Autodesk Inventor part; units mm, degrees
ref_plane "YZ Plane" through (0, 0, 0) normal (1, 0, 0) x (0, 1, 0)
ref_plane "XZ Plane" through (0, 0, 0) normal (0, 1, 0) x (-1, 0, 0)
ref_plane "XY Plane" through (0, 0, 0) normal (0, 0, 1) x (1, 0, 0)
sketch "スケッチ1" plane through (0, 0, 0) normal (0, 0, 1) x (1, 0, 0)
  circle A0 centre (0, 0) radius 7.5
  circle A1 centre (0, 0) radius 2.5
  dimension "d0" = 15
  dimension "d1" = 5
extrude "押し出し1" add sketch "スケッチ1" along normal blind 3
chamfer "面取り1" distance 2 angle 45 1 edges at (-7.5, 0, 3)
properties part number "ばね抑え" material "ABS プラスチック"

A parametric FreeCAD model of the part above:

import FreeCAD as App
import Part
import Sketcher


def edges_at(feature, points):
    """Names of the edges that pass closest to the given points."""
    edges = feature.Shape.Edges
    near = lambda p: min(range(len(edges)), key=lambda i: edges[i].distToShape(Part.Vertex(*p))[0])
    return sorted({f"Edge{near(p) + 1}" for p in points})

doc = App.newDocument("Part")
body = doc.addObject("PartDesign::Body", "Body")

sketch1 = doc.addObject("Sketcher::SketchObject", "Sketch")
body.addObject(sketch1)
sketch1.AttachmentSupport = (doc.XY_Plane, [""])
sketch1.MapMode = "FlatFace"
sketch1.addGeometry(Part.Circle(App.Vector(0, 0, 0), App.Vector(0, 0, 1), 7.5), False)
sketch1.addGeometry(Part.Circle(App.Vector(0, 0, 0), App.Vector(0, 0, 1), 2.5), False)
sketch1.addConstraint(Sketcher.Constraint("Coincident", 0, 3, -1, 1))
sketch1.addConstraint(Sketcher.Constraint("Coincident", 1, 3, -1, 1))
sketch1.addConstraint(Sketcher.Constraint("Diameter", 0, 15.0))
sketch1.addConstraint(Sketcher.Constraint("Diameter", 1, 5.0))
pad1 = doc.addObject("PartDesign::Pad", "Pad")
body.addObject(pad1)
pad1.Profile = sketch1
pad1.Length = 3
doc.recompute()

chamfer = doc.addObject("PartDesign::Chamfer", "Chamfer")
body.addObject(chamfer)
chamfer.Base = (pad1, edges_at(pad1, [(-7.5, 0, 3)]))
chamfer.Size = 2

doc.recompute()
